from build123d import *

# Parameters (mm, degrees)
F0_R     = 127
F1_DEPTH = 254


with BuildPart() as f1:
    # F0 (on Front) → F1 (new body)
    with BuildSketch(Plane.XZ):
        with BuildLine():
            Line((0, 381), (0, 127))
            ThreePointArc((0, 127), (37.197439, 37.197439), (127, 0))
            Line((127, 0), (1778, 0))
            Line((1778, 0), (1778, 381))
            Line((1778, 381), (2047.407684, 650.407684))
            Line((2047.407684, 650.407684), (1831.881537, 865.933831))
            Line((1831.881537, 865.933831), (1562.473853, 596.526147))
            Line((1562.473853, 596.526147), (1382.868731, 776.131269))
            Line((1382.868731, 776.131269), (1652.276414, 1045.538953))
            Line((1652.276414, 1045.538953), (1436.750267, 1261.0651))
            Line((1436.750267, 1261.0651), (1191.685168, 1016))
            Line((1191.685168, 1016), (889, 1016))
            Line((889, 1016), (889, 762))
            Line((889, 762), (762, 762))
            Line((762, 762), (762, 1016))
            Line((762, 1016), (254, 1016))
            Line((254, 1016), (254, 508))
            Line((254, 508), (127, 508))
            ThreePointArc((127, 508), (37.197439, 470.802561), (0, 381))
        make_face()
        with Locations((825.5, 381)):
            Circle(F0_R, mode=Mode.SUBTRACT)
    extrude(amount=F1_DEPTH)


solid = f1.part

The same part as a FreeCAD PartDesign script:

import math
import FreeCAD as App
import Part
import Sketcher
from FreeCAD import Vector
Q = App.Units.Quantity

doc = App.newDocument("Part")
body = doc.addObject("PartDesign::Body", "Body")

# Sketch on XZ plane
sketch1 = doc.addObject("Sketcher::SketchObject", "Sketch")
body.addObject(sketch1)
sketch1.AttachmentSupport = (doc.XZ_Plane, [""])
sketch1.MapMode = "FlatFace"
sketch1.addGeometry([
    Part.LineSegment(Vector(0, 381, 0), Vector(0, 127, 0)),  # 0
    Part.ArcOfCircle(Part.Circle(Vector(127, 127, 0), Vector(0, 0, 1), 127), math.radians(-180), math.radians(-90)),  # 1
    Part.LineSegment(Vector(127, 0, 0), Vector(1778, 0, 0)),  # 2
    Part.LineSegment(Vector(1778, 0, 0), Vector(1778, 381, 0)),  # 3
    Part.LineSegment(Vector(1778, 381, 0), Vector(2047, 650, 0)),  # 4
    Part.LineSegment(Vector(2047, 650, 0), Vector(1832, 866, 0)),  # 5
    Part.LineSegment(Vector(1832, 866, 0), Vector(1562, 597, 0)),  # 6
    Part.LineSegment(Vector(1562, 597, 0), Vector(1383, 776, 0)),  # 7
    Part.LineSegment(Vector(1383, 776, 0), Vector(1652, 1046, 0)),  # 8
    Part.LineSegment(Vector(1652, 1046, 0), Vector(1437, 1261, 0)),  # 9
    Part.LineSegment(Vector(1437, 1261, 0), Vector(1192, 1016, 0)),  # 10
    Part.LineSegment(Vector(1192, 1016, 0), Vector(889, 1016, 0)),  # 11
    Part.LineSegment(Vector(889, 1016, 0), Vector(889, 762, 0)),  # 12
    Part.LineSegment(Vector(889, 762, 0), Vector(762, 762, 0)),  # 13
    Part.LineSegment(Vector(762, 762, 0), Vector(762, 1016, 0)),  # 14
    Part.LineSegment(Vector(762, 1016, 0), Vector(254, 1016, 0)),  # 15
    Part.LineSegment(Vector(254, 1016, 0), Vector(254, 508, 0)),  # 16
    Part.LineSegment(Vector(254, 508, 0), Vector(127, 508, 0)),  # 17
    Part.ArcOfCircle(Part.Circle(Vector(127, 381, 0), Vector(0, 0, 1), 127), math.radians(90), math.radians(180)),  # 18
    Part.Circle(Vector(826, 381, 0), Vector(0, 0, 1), 127),  # 19
], False)
sketch1.addConstraint([
    Sketcher.Constraint("Tangent", 0, 2, 1, 1),
    Sketcher.Constraint("Tangent", 1, 2, 2, 1),
    Sketcher.Constraint("Coincident", 2, 2, 3, 1),
    Sketcher.Constraint("Coincident", 3, 2, 4, 1),
    Sketcher.Constraint("Coincident", 4, 2, 5, 1),
    Sketcher.Constraint("Coincident", 5, 2, 6, 1),
    Sketcher.Constraint("Coincident", 6, 2, 7, 1),
    Sketcher.Constraint("Coincident", 7, 2, 8, 1),
    Sketcher.Constraint("Coincident", 8, 2, 9, 1),
    Sketcher.Constraint("Coincident", 9, 2, 10, 1),
    Sketcher.Constraint("Coincident", 10, 2, 11, 1),
    Sketcher.Constraint("Coincident", 11, 2, 12, 1),
    Sketcher.Constraint("Coincident", 12, 2, 13, 1),
    Sketcher.Constraint("Coincident", 13, 2, 14, 1),
    Sketcher.Constraint("Coincident", 14, 2, 15, 1),
    Sketcher.Constraint("Coincident", 15, 2, 16, 1),
    Sketcher.Constraint("Coincident", 16, 2, 17, 1),
    Sketcher.Constraint("Tangent", 17, 2, 18, 1),
    Sketcher.Constraint("Tangent", 18, 2, 0, 1),
    Sketcher.Constraint("Vertical", 0),
    Sketcher.Constraint("Horizontal", 2),
    Sketcher.Constraint("Vertical", 3),
    Sketcher.Constraint("Horizontal", 11),
    Sketcher.Constraint("Vertical", 12),
    Sketcher.Constraint("Horizontal", 13),
    Sketcher.Constraint("Vertical", 14),
    Sketcher.Constraint("Horizontal", 15),
    Sketcher.Constraint("Vertical", 16),
    Sketcher.Constraint("Horizontal", 17),
    Sketcher.Constraint("Equal", 1, 18),
    Sketcher.Constraint("Equal", 18, 19),
    Sketcher.Constraint("PointOnObject", 0, 2, -2),
    Sketcher.Constraint("PointOnObject", 1, 2, -1),
    Sketcher.Constraint("Perpendicular", 4, 5),
    Sketcher.Constraint("Perpendicular", 5, 6),
    Sketcher.Constraint("Perpendicular", 6, 7),
    Sketcher.Constraint("Perpendicular", 7, 8),
    Sketcher.Constraint("Perpendicular", 8, 9),
    Sketcher.Constraint("Perpendicular", 9, 10),
    Sketcher.Constraint("Horizontal", 18, 3, 19, 3),
    Sketcher.Constraint("Horizontal", 19, 3, 3, 2),
    Sketcher.Constraint("Horizontal", 11, 2, 14, 2),
    Sketcher.Constraint("Equal", 13, 17),
    Sketcher.Constraint("Equal", 0, 12),
    Sketcher.Constraint("Equal", 15, 16),
    Sketcher.Constraint("Equal", 4, 6),
    Sketcher.Constraint("Equal", 6, 8),
    Sketcher.Constraint("Equal", 5, 9),
    Sketcher.Constraint("Diameter", 19, Q("10 in")),
    Sketcher.Constraint("DistanceX", 2, 1, 2, 2, Q("65 in")),
    Sketcher.Constraint("DistanceX", 13, 2, 13, 1, Q("5 in")),
    Sketcher.Constraint("DistanceX", 15, 2, 15, 1, Q("20 in")),
    Sketcher.Constraint("DistanceY", 0, 2, 0, 1, Q("10 in")),
    Sketcher.Constraint("Distance", 4, Q("15 in")),
    Sketcher.Constraint("Distance", 5, Q("12 in")),
    Sketcher.Constraint("Distance", 7, Q("10 in")),
    Sketcher.Constraint("Angle", 4, Q("45 deg")),
    Sketcher.Constraint("DistanceX", -1, 1, 19, 3, Q("32.5 in")),
])
pad1 = doc.addObject("PartDesign::Pad", "Pad")
body.addObject(pad1)
pad1.Profile = sketch1
pad1.Length = Q("10 in")

doc.recompute()
